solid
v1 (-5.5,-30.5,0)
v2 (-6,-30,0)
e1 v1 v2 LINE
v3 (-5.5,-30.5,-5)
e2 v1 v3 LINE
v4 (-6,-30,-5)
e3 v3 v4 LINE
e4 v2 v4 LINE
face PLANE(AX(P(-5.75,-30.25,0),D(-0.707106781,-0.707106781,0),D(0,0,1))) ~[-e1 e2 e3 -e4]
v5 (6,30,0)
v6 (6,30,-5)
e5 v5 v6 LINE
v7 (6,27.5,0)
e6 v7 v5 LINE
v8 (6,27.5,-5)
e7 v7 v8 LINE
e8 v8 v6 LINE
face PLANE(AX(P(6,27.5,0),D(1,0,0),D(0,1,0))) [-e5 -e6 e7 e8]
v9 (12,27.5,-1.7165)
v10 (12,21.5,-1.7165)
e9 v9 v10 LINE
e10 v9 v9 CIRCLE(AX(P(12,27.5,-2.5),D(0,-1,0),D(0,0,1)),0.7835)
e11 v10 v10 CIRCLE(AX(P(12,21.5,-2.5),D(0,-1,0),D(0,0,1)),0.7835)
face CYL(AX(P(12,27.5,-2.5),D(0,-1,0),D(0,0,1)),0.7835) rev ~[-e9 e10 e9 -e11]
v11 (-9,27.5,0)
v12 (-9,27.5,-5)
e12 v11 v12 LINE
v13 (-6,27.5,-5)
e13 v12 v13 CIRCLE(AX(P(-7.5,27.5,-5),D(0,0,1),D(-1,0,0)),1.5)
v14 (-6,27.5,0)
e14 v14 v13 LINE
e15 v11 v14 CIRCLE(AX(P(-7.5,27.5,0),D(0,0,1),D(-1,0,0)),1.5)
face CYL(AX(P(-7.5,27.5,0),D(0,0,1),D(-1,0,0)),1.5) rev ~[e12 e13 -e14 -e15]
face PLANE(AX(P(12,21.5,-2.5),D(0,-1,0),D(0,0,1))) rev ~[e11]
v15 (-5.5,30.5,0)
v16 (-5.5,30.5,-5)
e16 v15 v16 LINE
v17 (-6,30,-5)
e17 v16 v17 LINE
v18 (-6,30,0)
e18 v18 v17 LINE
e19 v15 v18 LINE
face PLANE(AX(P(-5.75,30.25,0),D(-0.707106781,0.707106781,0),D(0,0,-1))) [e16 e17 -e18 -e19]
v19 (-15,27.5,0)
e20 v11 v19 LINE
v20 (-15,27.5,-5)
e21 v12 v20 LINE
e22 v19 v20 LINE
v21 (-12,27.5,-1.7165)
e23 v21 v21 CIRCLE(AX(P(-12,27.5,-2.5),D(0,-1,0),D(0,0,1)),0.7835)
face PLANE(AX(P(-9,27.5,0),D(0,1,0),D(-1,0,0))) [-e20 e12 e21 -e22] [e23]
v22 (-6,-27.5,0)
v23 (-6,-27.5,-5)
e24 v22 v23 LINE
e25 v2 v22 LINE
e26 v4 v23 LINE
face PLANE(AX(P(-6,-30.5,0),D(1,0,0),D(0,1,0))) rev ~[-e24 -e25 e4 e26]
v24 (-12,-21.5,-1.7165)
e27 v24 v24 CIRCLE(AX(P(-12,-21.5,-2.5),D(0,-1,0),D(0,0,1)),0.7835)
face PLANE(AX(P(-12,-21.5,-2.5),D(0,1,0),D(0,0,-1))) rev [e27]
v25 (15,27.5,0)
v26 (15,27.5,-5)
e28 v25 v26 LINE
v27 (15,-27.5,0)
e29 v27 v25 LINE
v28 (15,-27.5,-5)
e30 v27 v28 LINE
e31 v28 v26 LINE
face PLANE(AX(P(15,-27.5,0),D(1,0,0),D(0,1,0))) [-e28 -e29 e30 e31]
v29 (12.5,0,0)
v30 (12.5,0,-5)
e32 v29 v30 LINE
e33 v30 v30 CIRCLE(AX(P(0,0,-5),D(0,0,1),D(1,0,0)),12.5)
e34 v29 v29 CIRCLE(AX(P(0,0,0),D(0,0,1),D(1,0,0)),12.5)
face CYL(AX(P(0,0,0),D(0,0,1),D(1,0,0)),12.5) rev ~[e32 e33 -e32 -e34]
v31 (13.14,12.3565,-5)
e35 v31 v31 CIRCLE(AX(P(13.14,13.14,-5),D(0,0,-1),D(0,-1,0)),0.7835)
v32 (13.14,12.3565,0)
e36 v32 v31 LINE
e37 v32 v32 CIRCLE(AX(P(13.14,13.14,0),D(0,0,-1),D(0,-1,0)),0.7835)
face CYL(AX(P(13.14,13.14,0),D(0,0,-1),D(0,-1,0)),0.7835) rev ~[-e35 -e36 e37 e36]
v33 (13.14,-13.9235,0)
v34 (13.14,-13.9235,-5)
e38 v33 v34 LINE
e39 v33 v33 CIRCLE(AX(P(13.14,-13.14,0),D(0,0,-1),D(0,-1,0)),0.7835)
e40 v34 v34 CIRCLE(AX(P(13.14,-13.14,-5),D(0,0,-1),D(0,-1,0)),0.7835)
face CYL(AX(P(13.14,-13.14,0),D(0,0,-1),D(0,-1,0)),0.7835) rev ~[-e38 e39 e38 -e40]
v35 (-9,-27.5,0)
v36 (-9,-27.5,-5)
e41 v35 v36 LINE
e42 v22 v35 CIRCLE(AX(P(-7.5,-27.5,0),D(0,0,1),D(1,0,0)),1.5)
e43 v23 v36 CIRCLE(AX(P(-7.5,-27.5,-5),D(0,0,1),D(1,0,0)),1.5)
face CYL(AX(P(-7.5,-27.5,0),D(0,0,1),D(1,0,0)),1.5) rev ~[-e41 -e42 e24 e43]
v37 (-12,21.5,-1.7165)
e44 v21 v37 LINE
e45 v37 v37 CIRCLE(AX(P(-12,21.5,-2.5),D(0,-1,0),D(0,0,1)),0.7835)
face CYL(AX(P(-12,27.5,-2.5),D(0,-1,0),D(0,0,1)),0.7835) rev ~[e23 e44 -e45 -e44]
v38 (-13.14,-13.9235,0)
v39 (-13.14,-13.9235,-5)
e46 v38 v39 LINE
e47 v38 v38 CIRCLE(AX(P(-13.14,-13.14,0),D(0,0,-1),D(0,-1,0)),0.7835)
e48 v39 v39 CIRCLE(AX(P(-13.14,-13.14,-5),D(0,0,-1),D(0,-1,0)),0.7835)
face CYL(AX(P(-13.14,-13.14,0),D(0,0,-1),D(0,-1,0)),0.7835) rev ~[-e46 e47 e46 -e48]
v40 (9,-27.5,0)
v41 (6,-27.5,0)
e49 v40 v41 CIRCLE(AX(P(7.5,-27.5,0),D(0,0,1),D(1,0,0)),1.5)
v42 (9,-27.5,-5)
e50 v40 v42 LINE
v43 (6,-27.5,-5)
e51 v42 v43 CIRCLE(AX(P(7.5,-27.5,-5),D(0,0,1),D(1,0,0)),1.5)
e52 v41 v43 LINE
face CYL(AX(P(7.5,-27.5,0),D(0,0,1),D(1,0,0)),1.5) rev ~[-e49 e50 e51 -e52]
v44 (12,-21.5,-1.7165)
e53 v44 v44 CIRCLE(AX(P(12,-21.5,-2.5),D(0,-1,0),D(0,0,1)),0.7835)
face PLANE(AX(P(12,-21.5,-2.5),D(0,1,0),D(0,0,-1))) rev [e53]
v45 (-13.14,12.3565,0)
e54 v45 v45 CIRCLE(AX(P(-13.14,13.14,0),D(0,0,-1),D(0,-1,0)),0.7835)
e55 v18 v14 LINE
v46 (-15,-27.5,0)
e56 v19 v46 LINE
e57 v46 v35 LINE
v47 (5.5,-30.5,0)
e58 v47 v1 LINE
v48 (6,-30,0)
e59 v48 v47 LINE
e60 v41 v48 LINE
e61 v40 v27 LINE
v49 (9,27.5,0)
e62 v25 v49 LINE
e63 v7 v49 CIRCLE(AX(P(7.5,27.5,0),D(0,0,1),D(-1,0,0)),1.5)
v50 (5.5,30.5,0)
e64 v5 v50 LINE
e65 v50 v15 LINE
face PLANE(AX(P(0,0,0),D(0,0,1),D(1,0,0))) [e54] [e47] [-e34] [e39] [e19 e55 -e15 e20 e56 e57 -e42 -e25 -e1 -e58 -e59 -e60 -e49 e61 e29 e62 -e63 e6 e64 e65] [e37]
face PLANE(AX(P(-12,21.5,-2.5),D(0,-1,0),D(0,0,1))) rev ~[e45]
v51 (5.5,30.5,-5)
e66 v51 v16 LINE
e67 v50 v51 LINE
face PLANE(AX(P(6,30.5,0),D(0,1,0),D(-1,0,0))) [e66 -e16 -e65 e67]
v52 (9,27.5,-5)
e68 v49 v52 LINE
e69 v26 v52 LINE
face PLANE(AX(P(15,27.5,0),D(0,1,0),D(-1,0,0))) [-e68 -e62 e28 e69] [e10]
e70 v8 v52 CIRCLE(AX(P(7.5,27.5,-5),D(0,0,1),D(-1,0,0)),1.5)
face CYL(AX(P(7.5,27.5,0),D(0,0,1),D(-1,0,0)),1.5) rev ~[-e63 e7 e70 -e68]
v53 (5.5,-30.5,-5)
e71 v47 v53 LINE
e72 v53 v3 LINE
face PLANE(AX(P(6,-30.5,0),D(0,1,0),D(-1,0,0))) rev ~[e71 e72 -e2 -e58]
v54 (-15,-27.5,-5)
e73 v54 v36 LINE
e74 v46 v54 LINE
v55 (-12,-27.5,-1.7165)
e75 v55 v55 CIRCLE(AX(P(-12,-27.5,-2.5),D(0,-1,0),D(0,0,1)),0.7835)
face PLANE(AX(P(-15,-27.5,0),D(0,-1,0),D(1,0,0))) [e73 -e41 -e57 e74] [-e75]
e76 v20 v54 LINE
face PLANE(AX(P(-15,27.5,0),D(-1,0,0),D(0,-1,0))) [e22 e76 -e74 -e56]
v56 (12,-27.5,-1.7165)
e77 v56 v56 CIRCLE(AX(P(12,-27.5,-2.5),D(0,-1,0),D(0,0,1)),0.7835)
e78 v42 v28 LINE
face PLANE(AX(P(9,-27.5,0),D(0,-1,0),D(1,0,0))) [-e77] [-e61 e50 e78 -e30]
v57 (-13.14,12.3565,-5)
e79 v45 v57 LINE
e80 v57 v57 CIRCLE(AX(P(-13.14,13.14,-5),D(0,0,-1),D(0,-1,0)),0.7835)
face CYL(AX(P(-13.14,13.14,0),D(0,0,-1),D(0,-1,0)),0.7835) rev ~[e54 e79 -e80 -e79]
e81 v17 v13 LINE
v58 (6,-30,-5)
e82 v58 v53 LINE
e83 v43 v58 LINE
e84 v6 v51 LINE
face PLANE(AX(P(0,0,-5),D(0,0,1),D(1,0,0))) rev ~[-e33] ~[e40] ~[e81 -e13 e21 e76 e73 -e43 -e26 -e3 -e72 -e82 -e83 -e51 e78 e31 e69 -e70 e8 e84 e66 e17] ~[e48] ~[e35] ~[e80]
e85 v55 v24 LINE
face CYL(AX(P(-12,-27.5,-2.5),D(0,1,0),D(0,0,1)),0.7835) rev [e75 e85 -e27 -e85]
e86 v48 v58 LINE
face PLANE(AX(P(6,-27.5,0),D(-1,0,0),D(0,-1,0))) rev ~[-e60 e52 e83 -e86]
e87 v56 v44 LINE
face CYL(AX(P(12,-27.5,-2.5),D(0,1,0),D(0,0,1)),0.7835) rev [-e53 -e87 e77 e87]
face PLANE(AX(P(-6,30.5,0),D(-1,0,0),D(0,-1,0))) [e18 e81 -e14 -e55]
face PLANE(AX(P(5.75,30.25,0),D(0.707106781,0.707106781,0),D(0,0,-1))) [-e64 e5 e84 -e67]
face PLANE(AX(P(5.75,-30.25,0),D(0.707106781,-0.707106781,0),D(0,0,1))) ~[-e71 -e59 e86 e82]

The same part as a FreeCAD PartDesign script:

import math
import FreeCAD as App
import Part
import Sketcher

V = App.Vector


def edges_at(feature, points):
    """Names of the edges that pass closest to the given points."""
    edges = feature.Shape.Edges
    near = lambda p: min(range(len(edges)), key=lambda i: edges[i].distToShape(Part.Vertex(*p))[0])
    return sorted({f"Edge{near(p) + 1}" for p in points})

doc = App.newDocument("Part")
body = doc.addObject("PartDesign::Body", "Body")

# Sketch on XY plane
sketch1 = doc.addObject("Sketcher::SketchObject", "Sketch")
body.addObject(sketch1)
sketch1.AttachmentSupport = (doc.XY_Plane, [""])
sketch1.MapMode = "FlatFace"
sketch1.addGeometry(Part.LineSegment(V(15, -27.5, 0), V(15, 27.5, 0)), False)
sketch1.addGeometry(Part.LineSegment(V(15, 27.5, 0), V(9, 27.5, 0)), False)
sketch1.addGeometry(Part.ArcOfCircle(Part.Circle(V(7.5, 27.5, 0), V(0, 0, 1), 1.5), math.radians(180), math.radians(360)), False)
sketch1.addGeometry(Part.LineSegment(V(6, 27.5, 0), V(6, 30.5, 0)), False)
sketch1.addGeometry(Part.LineSegment(V(6, 30.5, 0), V(-6, 30.5, 0)), False)
sketch1.addGeometry(Part.LineSegment(V(-6, 30.5, 0), V(-6, 27.5, 0)), False)
sketch1.addGeometry(Part.ArcOfCircle(Part.Circle(V(-7.5, 27.5, 0), V(0, 0, 1), 1.5), math.radians(180), math.radians(360)), False)
sketch1.addGeometry(Part.LineSegment(V(-9, 27.5, 0), V(-15, 27.5, 0)), False)
sketch1.addGeometry(Part.LineSegment(V(-15, 27.5, 0), V(-15, -27.5, 0)), False)
sketch1.addGeometry(Part.LineSegment(V(-15, -27.5, 0), V(-9, -27.5, 0)), False)
sketch1.addGeometry(Part.ArcOfCircle(Part.Circle(V(-7.5, -27.5, 0), V(0, 0, 1), 1.5), math.radians(0), math.radians(180)), False)
sketch1.addGeometry(Part.LineSegment(V(-6, -27.5, 0), V(-6, -30.5, 0)), False)
sketch1.addGeometry(Part.LineSegment(V(-6, -30.5, 0), V(6, -30.5, 0)), False)
sketch1.addGeometry(Part.LineSegment(V(6, -30.5, 0), V(6, -27.5, 0)), False)
sketch1.addGeometry(Part.ArcOfCircle(Part.Circle(V(7.5, -27.5, 0), V(0, 0, 1), 1.5), math.radians(0), math.radians(180)), False)
sketch1.addGeometry(Part.LineSegment(V(9, -27.5, 0), V(15, -27.5, 0)), False)
sketch1.addConstraint(Sketcher.Constraint("Coincident", 0, 2, 1, 1))
sketch1.addConstraint(Sketcher.Constraint("Coincident", 1, 2, 2, 2))
sketch1.addConstraint(Sketcher.Constraint("Tangent", 2, 1, 3, 1))
sketch1.addConstraint(Sketcher.Constraint("Coincident", 3, 2, 4, 1))
sketch1.addConstraint(Sketcher.Constraint("Coincident", 4, 2, 5, 1))
sketch1.addConstraint(Sketcher.Constraint("Tangent", 5, 2, 6, 2))
sketch1.addConstraint(Sketcher.Constraint("Coincident", 6, 1, 7, 1))
sketch1.addConstraint(Sketcher.Constraint("Coincident", 7, 2, 8, 1))
sketch1.addConstraint(Sketcher.Constraint("Coincident", 8, 2, 9, 1))
sketch1.addConstraint(Sketcher.Constraint("Coincident", 9, 2, 10, 2))
sketch1.addConstraint(Sketcher.Constraint("Tangent", 10, 1, 11, 1))
sketch1.addConstraint(Sketcher.Constraint("Coincident", 11, 2, 12, 1))
sketch1.addConstraint(Sketcher.Constraint("Coincident", 12, 2, 13, 1))
sketch1.addConstraint(Sketcher.Constraint("Tangent", 13, 2, 14, 2))
sketch1.addConstraint(Sketcher.Constraint("Coincident", 14, 1, 15, 1))
sketch1.addConstraint(Sketcher.Constraint("Coincident", 15, 2, 0, 1))
sketch1.addConstraint(Sketcher.Constraint("Vertical", 0))
sketch1.addConstraint(Sketcher.Constraint("Horizontal", 1))
sketch1.addConstraint(Sketcher.Constraint("Vertical", 3))
sketch1.addConstraint(Sketcher.Constraint("Horizontal", 4))
sketch1.addConstraint(Sketcher.Constraint("Vertical", 5))
sketch1.addConstraint(Sketcher.Constraint("Horizontal", 7))
sketch1.addConstraint(Sketcher.Constraint("Vertical", 8))
sketch1.addConstraint(Sketcher.Constraint("Horizontal", 9))
sketch1.addConstraint(Sketcher.Constraint("Vertical", 11))
sketch1.addConstraint(Sketcher.Constraint("Horizontal", 12))
sketch1.addConstraint(Sketcher.Constraint("Vertical", 13))
sketch1.addConstraint(Sketcher.Constraint("Horizontal", 15))
sketch1.addConstraint(Sketcher.Constraint("Equal", 2, 6))
sketch1.addConstraint(Sketcher.Constraint("Equal", 6, 10))
sketch1.addConstraint(Sketcher.Constraint("Equal", 10, 14))
sketch1.addConstraint(Sketcher.Constraint("Symmetric", 2, 3, 10, 3, -1, 1))
sketch1.addConstraint(Sketcher.Constraint("Symmetric", 6, 3, 14, 3, -1, 1))
sketch1.addConstraint(Sketcher.Constraint("Symmetric", 0, 2, 8, 2, -1, 1))
sketch1.addConstraint(Sketcher.Constraint("Symmetric", 2, 3, 6, 3, -2))
sketch1.addConstraint(Sketcher.Constraint("Horizontal", 6, 3, 0, 2))
sketch1.addConstraint(Sketcher.Constraint("Horizontal", 5, 2, 6, 1))
sketch1.addConstraint(Sketcher.Constraint("Horizontal", 13, 2, 14, 1))
sketch1.addConstraint(Sketcher.Constraint("Equal", 5, 11))
sketch1.addConstraint(Sketcher.Constraint("Radius", 2, 1.5))
sketch1.addConstraint(Sketcher.Constraint("DistanceX", 1, 2, 1, 1, 6.0))
sketch1.addConstraint(Sketcher.Constraint("DistanceX", 4, 2, 4, 1, 12.0))
sketch1.addConstraint(Sketcher.Constraint("DistanceY", 0, 1, 0, 2, 55.0))
sketch1.addConstraint(Sketcher.Constraint("DistanceY", 3, 1, 3, 2, 3.0))
pad1 = doc.addObject("PartDesign::Pad", "Pad")
body.addObject(pad1)
pad1.Profile = sketch1
pad1.Length = 5
pad1.Reversed = True

# Sketch on XY plane
sketch2 = doc.addObject("Sketcher::SketchObject", "Sketch001")
body.addObject(sketch2)
sketch2.AttachmentSupport = (doc.XY_Plane, [""])
sketch2.MapMode = "FlatFace"
sketch2.addGeometry(Part.Circle(V(0, 0, 0), V(0, 0, 1), 12.5), False)
sketch2.addConstraint(Sketcher.Constraint("Coincident", 0, 3, -1, 1))
sketch2.addConstraint(Sketcher.Constraint("Diameter", 0, 25.0))
pocket1 = doc.addObject("PartDesign::Pocket", "Pocket")
body.addObject(pocket1)
pocket1.Profile = sketch2
pocket1.Type = "ThroughAll"

# Sketch on XY plane
sketch3 = doc.addObject("Sketcher::SketchObject", "Sketch002")
body.addObject(sketch3)
sketch3.AttachmentSupport = (doc.XY_Plane, [""])
sketch3.MapMode = "FlatFace"
sketch3.addGeometry(Part.Circle(V(13.14, 13.14, 0), V(0, 0, 1), 0.7835), False)
sketch3.addGeometry(Part.Circle(V(-13.14, 13.14, 0), V(0, 0, 1), 0.7835), False)
sketch3.addGeometry(Part.Circle(V(-13.14, -13.14, 0), V(0, 0, 1), 0.7835), False)
sketch3.addGeometry(Part.Circle(V(13.14, -13.14, 0), V(0, 0, 1), 0.7835), False)
sketch3.addConstraint(Sketcher.Constraint("Equal", 0, 1))
sketch3.addConstraint(Sketcher.Constraint("Equal", 1, 2))
sketch3.addConstraint(Sketcher.Constraint("Equal", 2, 3))
sketch3.addConstraint(Sketcher.Constraint("Symmetric", 0, 3, 2, 3, -1, 1))
sketch3.addConstraint(Sketcher.Constraint("Symmetric", 1, 3, 3, 3, -1, 1))
sketch3.addConstraint(Sketcher.Constraint("Symmetric", 0, 3, 1, 3, -2))
sketch3.addConstraint(Sketcher.Constraint("Diameter", 0, 1.567))
sketch3.addConstraint(Sketcher.Constraint("DistanceX", -1, 1, 0, 3, 13.14))
sketch3.addConstraint(Sketcher.Constraint("DistanceY", -1, 1, 0, 3, 13.14))
doc.recompute()
hole = doc.addObject("PartDesign::Hole", "Hole")
body.addObject(hole)
hole.Profile = sketch3
hole.ThreadType = "None"
hole.Diameter = 1.567
hole.DepthType = "ThroughAll"

# Sketch on XZ plane
sketch4 = doc.addObject("Sketcher::SketchObject", "Sketch003")
body.addObject(sketch4)
sketch4.AttachmentSupport = (doc.XZ_Plane, [""])
sketch4.MapMode = "FlatFace"
sketch4.AttachmentOffset = App.Placement(V(0, 0, -27.5), App.Rotation())
sketch4.addGeometry(Part.Circle(V(-12, -2.5, 0), V(0, 0, 1), 0.7835), False)
sketch4.addGeometry(Part.Circle(V(12, -2.5, 0), V(0, 0, 1), 0.7835), False)
sketch4.addConstraint(Sketcher.Constraint("Equal", 0, 1))
sketch4.addConstraint(Sketcher.Constraint("Symmetric", 0, 3, 1, 3, -2))
sketch4.addConstraint(Sketcher.Constraint("Diameter", 0, 1.567))
sketch4.addConstraint(Sketcher.Constraint("DistanceX", 0, 3, -1, 1, 12.0))
sketch4.addConstraint(Sketcher.Constraint("DistanceY", 0, 3, -1, 1, 2.5))
doc.recompute()
hole2 = doc.addObject("PartDesign::Hole", "Hole001")
body.addObject(hole2)
hole2.Profile = sketch4
hole2.ThreadType = "None"
hole2.Diameter = 1.567
hole2.DepthType = "Dimension"
hole2.Depth = 6
hole2.DrillPoint = "Flat"
hole2.Reversed = True
doc.recompute()

mirrored = doc.addObject("PartDesign::Mirrored", "Mirrored")
body.addObject(mirrored)
mirrored.Originals = [hole2]
mirrored.MirrorPlane = (doc.XZ_Plane, [""])
body.Tip = mirrored
doc.recompute()

chamfer = doc.addObject("PartDesign::Chamfer", "Chamfer")
body.addObject(chamfer)
chamfer.Base = (mirrored, edges_at(mirrored, [
    (6, -30.5, -2.5),
    (-6, -30.5, -2.5),
    (6, 30.5, -2.5),
    (-6, 30.5, -2.5),
]))
chamfer.Size = 0.5

doc.recompute()
